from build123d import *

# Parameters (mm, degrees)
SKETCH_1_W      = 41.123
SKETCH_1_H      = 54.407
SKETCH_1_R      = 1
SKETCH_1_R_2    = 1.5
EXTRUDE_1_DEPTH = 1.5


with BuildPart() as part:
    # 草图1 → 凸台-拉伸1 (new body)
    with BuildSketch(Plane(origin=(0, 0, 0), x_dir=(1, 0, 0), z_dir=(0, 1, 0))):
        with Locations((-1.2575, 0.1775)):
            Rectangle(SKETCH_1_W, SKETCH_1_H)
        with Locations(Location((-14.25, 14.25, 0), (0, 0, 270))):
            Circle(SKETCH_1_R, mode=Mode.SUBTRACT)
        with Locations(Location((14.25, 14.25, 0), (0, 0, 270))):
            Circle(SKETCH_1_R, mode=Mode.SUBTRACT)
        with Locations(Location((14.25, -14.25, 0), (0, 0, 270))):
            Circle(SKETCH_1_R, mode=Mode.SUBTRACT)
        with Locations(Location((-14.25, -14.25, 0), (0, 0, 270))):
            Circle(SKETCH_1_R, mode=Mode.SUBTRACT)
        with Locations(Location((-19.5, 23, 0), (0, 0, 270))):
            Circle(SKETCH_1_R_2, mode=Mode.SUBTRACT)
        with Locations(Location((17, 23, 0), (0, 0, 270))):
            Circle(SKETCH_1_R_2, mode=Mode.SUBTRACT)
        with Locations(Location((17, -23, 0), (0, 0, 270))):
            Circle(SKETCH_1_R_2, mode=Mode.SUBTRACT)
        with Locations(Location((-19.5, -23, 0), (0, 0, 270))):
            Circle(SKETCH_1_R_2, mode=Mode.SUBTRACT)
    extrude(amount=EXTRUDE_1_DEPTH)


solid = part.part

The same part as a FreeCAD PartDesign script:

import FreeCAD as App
import Part
import Sketcher
from FreeCAD import Vector
Q = App.Units.Quantity

doc = App.newDocument("Part")
body = doc.addObject("PartDesign::Body", "Body")

# Sketch on XZ plane
sketch1 = body.newObject("Sketcher::SketchObject", "Sketch")
sketch1.AttachmentSupport = (doc.getObject("XZ_Plane"), [""])
sketch1.MapMode = "FlatFace"
sketch1.addGeometry(Part.LineSegment(Vector(-21.8, -27.4, 0), Vector(-21.8, 27, 0)), False)
sketch1.addGeometry(Part.LineSegment(Vector(-21.8, 27, 0), Vector(19.3, 27, 0)), False)
sketch1.addGeometry(Part.LineSegment(Vector(19.3, 27, 0), Vector(19.3, -27.4, 0)), False)
sketch1.addGeometry(Part.LineSegment(Vector(19.3, -27.4, 0), Vector(-21.8, -27.4, 0)), False)
sketch1.addGeometry(Part.Circle(Vector(-19.5, 23, 0), Vector(0, 0, 1), 1.5), False)
sketch1.addGeometry(Part.Circle(Vector(-14.2, 14.2, 0), Vector(0, 0, 1), 1), False)
sketch1.addGeometry(Part.Circle(Vector(17, 23, 0), Vector(0, 0, 1), 1.5), False)
sketch1.addGeometry(Part.Circle(Vector(14.2, 14.2, 0), Vector(0, 0, 1), 1), False)
sketch1.addGeometry(Part.Circle(Vector(-14.2, -14.2, 0), Vector(0, 0, 1), 1), False)
sketch1.addGeometry(Part.Circle(Vector(-19.5, -23, 0), Vector(0, 0, 1), 1.5), False)
sketch1.addGeometry(Part.Circle(Vector(14.2, -14.2, 0), Vector(0, 0, 1), 1), False)
sketch1.addGeometry(Part.Circle(Vector(17, -23, 0), Vector(0, 0, 1), 1.5), False)
sketch1.addConstraint(Sketcher.Constraint("Coincident", 0, 2, 1, 1))
sketch1.addConstraint(Sketcher.Constraint("Coincident", 1, 2, 2, 1))
sketch1.addConstraint(Sketcher.Constraint("Coincident", 2, 2, 3, 1))
sketch1.addConstraint(Sketcher.Constraint("Coincident", 3, 2, 0, 1))
sketch1.addConstraint(Sketcher.Constraint("Vertical", 0))
sketch1.addConstraint(Sketcher.Constraint("Horizontal", 1))
sketch1.addConstraint(Sketcher.Constraint("Vertical", 2))
sketch1.addConstraint(Sketcher.Constraint("Horizontal", 3))
sketch1.addConstraint(Sketcher.Constraint("Equal", 4, 6))
sketch1.addConstraint(Sketcher.Constraint("Equal", 5, 7))
sketch1.addConstraint(Sketcher.Constraint("Equal", 7, 8))
sketch1.addConstraint(Sketcher.Constraint("Equal", 6, 9))
sketch1.addConstraint(Sketcher.Constraint("Equal", 8, 10))
sketch1.addConstraint(Sketcher.Constraint("Equal", 9, 11))
sketch1.addConstraint(Sketcher.Constraint("Symmetric", 7, 3, 8, 3, -1, 1))
sketch1.addConstraint(Sketcher.Constraint("Symmetric", 5, 3, 10, 3, -1, 1))
sketch1.addConstraint(Sketcher.Constraint("Symmetric", 5, 3, 7, 3, -2))
sketch1.addConstraint(Sketcher.Constraint("Symmetric", 4, 3, 9, 3, -1))
sketch1.addConstraint(Sketcher.Constraint("Symmetric", 6, 3, 11, 3, -1))
sketch1.addConstraint(Sketcher.Constraint("Horizontal", 4, 3, 6, 3))
sketch1.addConstraint(Sketcher.Constraint("Diameter", 4, Q("3 mm")))
sketch1.addConstraint(Sketcher.Constraint("Diameter", 5, Q("2 mm")))
sketch1.addConstraint(Sketcher.Constraint("DistanceY", -1, 1, 4, 3, Q("23 mm")))
sketch1.addConstraint(Sketcher.Constraint("DistanceX", -1, 1, 6, 3, Q("17 mm")))
sketch1.addConstraint(Sketcher.Constraint("DistanceX", 4, 3, -1, 1, Q("19.5 mm")))
sketch1.addConstraint(Sketcher.Constraint("DistanceX", 5, 3, 7, 3, Q("28.5 mm")))
sketch1.addConstraint(Sketcher.Constraint("DistanceY", 8, 3, 5, 3, Q("28.5 mm")))
sketch1.addConstraint(Sketcher.Constraint("DistanceX", 1, 1, 1, 2, Q("41.123 mm")))
sketch1.addConstraint(Sketcher.Constraint("DistanceY", 0, 1, 0, 2, Q("54.407 mm")))
sketch1.addConstraint(Sketcher.Constraint("DistanceX", 0, 2, -1, 1, Q("21.819 mm")))
sketch1.addConstraint(Sketcher.Constraint("DistanceY", -1, 1, 0, 2, Q("27.026 mm")))
pad1 = body.newObject("PartDesign::Pad", "Pad")
pad1.Profile = sketch1
pad1.Length = 1.5
pad1.Reversed = True

doc.recompute()
